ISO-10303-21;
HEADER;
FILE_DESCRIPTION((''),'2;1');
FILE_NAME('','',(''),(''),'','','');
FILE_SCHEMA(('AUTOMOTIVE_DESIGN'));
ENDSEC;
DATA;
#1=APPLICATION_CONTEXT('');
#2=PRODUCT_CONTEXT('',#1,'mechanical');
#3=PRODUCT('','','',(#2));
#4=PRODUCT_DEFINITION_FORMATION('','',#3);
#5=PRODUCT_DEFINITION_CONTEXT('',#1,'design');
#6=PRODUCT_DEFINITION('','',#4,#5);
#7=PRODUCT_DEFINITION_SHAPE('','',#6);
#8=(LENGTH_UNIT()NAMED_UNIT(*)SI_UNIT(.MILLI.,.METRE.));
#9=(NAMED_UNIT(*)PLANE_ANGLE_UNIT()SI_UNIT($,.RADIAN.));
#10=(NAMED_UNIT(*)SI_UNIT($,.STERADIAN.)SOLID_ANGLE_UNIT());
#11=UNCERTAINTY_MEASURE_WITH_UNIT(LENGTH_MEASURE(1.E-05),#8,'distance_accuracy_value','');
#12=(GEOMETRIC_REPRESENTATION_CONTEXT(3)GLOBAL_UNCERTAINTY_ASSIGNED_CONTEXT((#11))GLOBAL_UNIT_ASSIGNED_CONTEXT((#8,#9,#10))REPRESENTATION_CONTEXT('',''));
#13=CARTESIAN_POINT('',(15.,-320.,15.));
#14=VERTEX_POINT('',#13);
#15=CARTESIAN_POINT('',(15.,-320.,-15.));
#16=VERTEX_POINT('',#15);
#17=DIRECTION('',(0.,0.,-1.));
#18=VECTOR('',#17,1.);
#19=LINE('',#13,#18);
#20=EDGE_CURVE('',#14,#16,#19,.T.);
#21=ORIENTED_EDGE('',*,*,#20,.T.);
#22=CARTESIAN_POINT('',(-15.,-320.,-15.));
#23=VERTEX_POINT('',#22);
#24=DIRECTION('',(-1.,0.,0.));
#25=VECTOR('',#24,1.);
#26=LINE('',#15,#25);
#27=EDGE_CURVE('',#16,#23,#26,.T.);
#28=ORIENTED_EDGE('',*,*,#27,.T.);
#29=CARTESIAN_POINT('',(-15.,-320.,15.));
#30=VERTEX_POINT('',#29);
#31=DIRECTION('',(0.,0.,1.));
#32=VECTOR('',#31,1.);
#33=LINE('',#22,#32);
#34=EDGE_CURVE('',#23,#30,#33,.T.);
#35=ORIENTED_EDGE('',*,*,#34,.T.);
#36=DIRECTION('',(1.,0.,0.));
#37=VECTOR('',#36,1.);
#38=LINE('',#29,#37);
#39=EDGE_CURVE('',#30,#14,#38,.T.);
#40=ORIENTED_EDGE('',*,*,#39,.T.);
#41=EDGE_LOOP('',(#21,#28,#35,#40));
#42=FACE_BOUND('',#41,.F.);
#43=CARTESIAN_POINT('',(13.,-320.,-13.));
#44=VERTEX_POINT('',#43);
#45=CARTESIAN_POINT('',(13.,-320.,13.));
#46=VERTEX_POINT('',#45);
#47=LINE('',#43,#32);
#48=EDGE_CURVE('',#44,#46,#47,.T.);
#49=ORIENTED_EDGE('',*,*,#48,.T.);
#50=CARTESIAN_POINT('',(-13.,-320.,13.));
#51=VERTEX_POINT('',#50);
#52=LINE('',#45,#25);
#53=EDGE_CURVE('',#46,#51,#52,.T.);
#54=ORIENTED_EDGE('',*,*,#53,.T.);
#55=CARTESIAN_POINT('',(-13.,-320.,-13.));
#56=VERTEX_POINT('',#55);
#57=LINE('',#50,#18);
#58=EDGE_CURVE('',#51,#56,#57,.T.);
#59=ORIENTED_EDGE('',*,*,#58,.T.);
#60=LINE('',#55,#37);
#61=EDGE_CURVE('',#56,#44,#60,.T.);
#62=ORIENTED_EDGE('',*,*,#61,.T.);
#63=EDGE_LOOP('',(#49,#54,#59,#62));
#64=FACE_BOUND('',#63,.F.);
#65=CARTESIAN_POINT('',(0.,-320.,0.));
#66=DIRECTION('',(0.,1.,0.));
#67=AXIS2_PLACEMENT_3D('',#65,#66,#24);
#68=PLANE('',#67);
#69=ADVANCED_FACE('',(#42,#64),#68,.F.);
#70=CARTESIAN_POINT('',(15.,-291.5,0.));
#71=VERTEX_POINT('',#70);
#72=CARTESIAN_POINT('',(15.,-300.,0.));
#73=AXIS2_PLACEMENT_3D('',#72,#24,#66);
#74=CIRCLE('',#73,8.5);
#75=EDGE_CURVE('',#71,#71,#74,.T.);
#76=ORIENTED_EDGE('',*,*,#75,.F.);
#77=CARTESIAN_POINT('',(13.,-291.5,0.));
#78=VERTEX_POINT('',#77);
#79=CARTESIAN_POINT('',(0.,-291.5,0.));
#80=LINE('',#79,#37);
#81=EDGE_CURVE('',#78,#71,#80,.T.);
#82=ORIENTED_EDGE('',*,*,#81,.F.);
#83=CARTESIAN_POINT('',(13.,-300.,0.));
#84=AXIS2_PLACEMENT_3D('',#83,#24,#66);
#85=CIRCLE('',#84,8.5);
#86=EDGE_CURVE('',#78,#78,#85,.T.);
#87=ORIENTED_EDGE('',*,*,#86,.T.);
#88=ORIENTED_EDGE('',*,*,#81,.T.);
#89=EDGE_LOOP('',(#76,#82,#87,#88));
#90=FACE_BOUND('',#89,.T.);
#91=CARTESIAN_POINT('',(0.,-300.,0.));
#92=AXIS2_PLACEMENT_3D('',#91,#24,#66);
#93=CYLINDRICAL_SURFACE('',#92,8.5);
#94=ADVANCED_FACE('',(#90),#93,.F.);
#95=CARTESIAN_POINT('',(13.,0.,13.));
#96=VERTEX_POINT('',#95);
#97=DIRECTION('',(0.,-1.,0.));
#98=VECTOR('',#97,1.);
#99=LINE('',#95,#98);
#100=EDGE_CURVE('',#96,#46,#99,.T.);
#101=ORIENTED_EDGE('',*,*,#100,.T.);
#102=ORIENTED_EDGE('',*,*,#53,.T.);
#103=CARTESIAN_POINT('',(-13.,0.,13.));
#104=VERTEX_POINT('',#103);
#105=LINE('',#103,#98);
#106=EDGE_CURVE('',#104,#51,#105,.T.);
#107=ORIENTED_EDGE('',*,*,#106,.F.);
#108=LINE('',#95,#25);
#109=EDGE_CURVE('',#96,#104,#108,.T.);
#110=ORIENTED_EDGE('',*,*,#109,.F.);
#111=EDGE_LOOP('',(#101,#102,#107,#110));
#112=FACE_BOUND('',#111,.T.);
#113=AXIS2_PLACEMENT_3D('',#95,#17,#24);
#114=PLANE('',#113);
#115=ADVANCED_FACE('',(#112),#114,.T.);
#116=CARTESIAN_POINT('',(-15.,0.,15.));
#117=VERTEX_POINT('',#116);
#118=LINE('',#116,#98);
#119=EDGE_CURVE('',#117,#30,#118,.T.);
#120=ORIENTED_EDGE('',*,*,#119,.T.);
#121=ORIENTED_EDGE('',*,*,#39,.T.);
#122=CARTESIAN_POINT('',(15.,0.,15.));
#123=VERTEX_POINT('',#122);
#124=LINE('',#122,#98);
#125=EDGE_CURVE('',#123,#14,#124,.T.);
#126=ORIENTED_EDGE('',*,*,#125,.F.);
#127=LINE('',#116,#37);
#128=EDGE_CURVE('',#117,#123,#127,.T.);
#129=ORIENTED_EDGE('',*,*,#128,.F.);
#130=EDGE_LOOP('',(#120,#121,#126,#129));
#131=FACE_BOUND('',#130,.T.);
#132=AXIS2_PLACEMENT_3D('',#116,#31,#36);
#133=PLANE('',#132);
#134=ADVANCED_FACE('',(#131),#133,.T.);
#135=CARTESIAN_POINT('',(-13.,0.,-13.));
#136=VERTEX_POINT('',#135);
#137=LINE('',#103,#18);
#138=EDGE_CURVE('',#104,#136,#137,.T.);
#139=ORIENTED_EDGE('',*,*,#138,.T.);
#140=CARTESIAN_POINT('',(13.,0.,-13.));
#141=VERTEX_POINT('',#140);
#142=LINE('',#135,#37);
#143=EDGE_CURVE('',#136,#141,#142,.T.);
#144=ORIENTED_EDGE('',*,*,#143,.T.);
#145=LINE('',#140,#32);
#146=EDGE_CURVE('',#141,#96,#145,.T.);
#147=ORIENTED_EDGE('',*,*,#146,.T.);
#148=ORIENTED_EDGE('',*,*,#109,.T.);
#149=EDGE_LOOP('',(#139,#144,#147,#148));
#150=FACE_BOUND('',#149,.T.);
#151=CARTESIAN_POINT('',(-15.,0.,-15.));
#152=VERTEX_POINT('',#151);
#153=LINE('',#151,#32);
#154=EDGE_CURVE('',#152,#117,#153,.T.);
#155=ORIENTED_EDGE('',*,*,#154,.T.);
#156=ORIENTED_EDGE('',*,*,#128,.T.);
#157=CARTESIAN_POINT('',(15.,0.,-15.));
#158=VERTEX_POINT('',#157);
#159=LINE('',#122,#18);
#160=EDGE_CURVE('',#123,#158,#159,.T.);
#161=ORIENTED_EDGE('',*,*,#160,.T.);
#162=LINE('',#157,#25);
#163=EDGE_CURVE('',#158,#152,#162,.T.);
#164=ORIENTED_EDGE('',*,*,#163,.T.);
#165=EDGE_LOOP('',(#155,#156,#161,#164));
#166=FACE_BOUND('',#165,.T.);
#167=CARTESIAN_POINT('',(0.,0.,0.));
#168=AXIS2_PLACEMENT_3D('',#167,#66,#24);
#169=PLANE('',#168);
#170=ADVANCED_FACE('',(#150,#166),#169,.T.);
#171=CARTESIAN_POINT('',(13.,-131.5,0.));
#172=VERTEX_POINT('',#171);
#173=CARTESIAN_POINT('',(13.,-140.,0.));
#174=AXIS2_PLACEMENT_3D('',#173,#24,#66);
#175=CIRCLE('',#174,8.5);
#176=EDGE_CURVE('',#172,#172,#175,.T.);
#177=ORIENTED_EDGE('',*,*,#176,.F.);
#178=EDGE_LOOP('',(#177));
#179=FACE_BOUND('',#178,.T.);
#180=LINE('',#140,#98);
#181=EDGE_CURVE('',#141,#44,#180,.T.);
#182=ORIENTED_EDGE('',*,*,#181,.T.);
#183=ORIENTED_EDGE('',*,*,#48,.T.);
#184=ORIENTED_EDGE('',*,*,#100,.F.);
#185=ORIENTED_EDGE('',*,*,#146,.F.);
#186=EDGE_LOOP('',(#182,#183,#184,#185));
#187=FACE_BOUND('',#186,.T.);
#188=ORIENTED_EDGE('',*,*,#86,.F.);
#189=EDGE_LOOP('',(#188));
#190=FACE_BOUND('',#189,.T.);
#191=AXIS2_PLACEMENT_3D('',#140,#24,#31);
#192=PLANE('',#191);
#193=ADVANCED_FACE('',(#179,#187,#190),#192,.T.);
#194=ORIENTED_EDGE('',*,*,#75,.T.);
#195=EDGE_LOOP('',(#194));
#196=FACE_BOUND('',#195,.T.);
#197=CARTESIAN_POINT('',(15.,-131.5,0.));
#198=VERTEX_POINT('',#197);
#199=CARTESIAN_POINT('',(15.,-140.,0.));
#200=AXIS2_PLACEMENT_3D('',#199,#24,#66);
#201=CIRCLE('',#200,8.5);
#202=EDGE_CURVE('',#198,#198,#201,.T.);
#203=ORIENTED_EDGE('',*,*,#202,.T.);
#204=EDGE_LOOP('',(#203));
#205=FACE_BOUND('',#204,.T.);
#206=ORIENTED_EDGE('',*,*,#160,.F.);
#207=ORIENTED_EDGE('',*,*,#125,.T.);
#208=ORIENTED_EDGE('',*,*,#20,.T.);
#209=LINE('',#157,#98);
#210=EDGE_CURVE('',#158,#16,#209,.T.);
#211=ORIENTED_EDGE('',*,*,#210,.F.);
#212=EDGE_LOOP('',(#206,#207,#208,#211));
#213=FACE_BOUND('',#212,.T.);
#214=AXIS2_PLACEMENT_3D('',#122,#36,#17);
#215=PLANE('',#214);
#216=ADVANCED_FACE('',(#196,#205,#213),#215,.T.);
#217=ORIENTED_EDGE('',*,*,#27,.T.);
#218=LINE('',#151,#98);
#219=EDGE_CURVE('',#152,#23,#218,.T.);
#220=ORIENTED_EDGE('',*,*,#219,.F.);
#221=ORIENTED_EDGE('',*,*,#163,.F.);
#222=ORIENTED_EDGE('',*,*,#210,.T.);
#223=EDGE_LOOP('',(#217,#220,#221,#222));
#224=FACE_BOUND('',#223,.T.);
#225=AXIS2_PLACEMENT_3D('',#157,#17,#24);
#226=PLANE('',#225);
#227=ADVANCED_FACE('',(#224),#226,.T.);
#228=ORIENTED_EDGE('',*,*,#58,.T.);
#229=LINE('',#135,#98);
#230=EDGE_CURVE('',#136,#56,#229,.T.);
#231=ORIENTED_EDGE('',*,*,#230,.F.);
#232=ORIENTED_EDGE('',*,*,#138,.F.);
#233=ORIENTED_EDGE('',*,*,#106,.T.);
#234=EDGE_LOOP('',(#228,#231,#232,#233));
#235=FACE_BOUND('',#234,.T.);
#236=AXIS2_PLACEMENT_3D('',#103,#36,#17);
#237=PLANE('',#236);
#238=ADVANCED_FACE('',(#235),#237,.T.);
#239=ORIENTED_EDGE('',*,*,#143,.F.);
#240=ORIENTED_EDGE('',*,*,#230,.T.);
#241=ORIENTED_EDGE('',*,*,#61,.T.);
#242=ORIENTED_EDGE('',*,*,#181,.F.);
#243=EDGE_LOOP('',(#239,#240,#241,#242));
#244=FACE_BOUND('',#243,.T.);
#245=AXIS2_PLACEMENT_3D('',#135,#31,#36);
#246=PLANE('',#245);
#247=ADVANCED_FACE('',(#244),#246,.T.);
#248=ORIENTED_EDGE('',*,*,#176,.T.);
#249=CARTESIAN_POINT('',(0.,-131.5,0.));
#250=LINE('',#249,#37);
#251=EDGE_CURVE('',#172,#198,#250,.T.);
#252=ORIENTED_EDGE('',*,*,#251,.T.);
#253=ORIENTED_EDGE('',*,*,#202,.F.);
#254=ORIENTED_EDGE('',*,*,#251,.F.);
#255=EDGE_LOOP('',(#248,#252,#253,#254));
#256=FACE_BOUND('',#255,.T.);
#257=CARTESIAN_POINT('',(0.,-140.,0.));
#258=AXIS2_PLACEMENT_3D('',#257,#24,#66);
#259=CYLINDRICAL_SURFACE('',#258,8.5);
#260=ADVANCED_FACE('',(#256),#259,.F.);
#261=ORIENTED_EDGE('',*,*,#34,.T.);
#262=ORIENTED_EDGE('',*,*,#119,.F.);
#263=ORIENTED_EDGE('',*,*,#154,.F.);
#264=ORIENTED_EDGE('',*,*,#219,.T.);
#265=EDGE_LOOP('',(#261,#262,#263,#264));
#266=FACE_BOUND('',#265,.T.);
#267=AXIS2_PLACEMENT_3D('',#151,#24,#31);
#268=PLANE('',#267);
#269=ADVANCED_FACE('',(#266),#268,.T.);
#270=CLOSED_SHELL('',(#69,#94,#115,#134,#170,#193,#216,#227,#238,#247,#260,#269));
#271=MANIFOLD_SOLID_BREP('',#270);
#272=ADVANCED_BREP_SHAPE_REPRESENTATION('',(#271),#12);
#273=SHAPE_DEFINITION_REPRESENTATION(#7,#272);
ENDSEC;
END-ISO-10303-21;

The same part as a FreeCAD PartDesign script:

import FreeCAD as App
import Part
import Sketcher

V = App.Vector
Q = App.Units.Quantity

doc = App.newDocument("Part")
body = doc.addObject("PartDesign::Body", "Body")

sketch1 = body.newObject("Sketcher::SketchObject", "Sketch")
sketch1.AttachmentSupport = (doc.getObject("XZ_Plane"), [""])
sketch1.MapMode = "FlatFace"
sketch1.addGeometry([
    Part.LineSegment(V(-15, -15, 0), V(-15, 15, 0)),
    Part.LineSegment(V(-15, 15, 0), V(15, 15, 0)),
    Part.LineSegment(V(15, 15, 0), V(15, -15, 0)),
    Part.LineSegment(V(15, -15, 0), V(-15, -15, 0)),
    Part.LineSegment(V(13, -13, 0), V(13, 13, 0)),
    Part.LineSegment(V(13, 13, 0), V(-13, 13, 0)),
    Part.LineSegment(V(-13, 13, 0), V(-13, -13, 0)),
    Part.LineSegment(V(-13, -13, 0), V(13, -13, 0)),
], False)
sketch1.addConstraint([
    Sketcher.Constraint("Coincident", 0, 2, 1, 1),
    Sketcher.Constraint("Coincident", 1, 2, 2, 1),
    Sketcher.Constraint("Coincident", 2, 2, 3, 1),
    Sketcher.Constraint("Coincident", 3, 2, 0, 1),
    Sketcher.Constraint("Coincident", 4, 2, 5, 1),
    Sketcher.Constraint("Coincident", 5, 2, 6, 1),
    Sketcher.Constraint("Coincident", 6, 2, 7, 1),
    Sketcher.Constraint("Coincident", 7, 2, 4, 1),
    Sketcher.Constraint("Vertical", 0),
    Sketcher.Constraint("Horizontal", 1),
    Sketcher.Constraint("Vertical", 2),
    Sketcher.Constraint("Horizontal", 3),
    Sketcher.Constraint("Vertical", 4),
    Sketcher.Constraint("Horizontal", 5),
    Sketcher.Constraint("Vertical", 6),
    Sketcher.Constraint("Horizontal", 7),
    Sketcher.Constraint("Symmetric", 0, 2, 2, 2, -1, 1),
    Sketcher.Constraint("Symmetric", 4, 2, 6, 2, -1, 1),
    Sketcher.Constraint("Equal", 3, 0),
    Sketcher.Constraint("Equal", 7, 4),
    Sketcher.Constraint("DistanceX", 1, 1, 1, 2, Q("30 mm")),
    Sketcher.Constraint("DistanceX", 4, 2, 1, 2, Q("2 mm")),
])
pad1 = body.newObject("PartDesign::Pad", "Pad")
pad1.Profile = sketch1
pad1.Length = 320

sketch2 = body.newObject("Sketcher::SketchObject", "Sketch001")
sketch2.AttachmentSupport = (doc.getObject("YZ_Plane"), [""])
sketch2.MapMode = "FlatFace"
sketch2.addGeometry([
    Part.Circle(V(-140, 0, 0), V(0, 0, 1), 8.5),
    Part.Circle(V(-300, 0, 0), V(0, 0, 1), 8.5),
], False)
sketch2.addConstraint([
    Sketcher.Constraint("Equal", 0, 1),
    Sketcher.Constraint("PointOnObject", 0, 3, -1),
    Sketcher.Constraint("PointOnObject", 1, 3, -1),
    Sketcher.Constraint("Diameter", 0, Q("17 mm")),
    Sketcher.Constraint("DistanceX", 0, 3, -1, 1, Q("140 mm")),
    Sketcher.Constraint("DistanceX", 1, 3, -1, 1, Q("300 mm")),
])
pocket1 = body.newObject("PartDesign::Pocket", "Pocket")
pocket1.Profile = sketch2
pocket1.Type = "ThroughAll"
pocket1.Reversed = True

doc.recompute()
